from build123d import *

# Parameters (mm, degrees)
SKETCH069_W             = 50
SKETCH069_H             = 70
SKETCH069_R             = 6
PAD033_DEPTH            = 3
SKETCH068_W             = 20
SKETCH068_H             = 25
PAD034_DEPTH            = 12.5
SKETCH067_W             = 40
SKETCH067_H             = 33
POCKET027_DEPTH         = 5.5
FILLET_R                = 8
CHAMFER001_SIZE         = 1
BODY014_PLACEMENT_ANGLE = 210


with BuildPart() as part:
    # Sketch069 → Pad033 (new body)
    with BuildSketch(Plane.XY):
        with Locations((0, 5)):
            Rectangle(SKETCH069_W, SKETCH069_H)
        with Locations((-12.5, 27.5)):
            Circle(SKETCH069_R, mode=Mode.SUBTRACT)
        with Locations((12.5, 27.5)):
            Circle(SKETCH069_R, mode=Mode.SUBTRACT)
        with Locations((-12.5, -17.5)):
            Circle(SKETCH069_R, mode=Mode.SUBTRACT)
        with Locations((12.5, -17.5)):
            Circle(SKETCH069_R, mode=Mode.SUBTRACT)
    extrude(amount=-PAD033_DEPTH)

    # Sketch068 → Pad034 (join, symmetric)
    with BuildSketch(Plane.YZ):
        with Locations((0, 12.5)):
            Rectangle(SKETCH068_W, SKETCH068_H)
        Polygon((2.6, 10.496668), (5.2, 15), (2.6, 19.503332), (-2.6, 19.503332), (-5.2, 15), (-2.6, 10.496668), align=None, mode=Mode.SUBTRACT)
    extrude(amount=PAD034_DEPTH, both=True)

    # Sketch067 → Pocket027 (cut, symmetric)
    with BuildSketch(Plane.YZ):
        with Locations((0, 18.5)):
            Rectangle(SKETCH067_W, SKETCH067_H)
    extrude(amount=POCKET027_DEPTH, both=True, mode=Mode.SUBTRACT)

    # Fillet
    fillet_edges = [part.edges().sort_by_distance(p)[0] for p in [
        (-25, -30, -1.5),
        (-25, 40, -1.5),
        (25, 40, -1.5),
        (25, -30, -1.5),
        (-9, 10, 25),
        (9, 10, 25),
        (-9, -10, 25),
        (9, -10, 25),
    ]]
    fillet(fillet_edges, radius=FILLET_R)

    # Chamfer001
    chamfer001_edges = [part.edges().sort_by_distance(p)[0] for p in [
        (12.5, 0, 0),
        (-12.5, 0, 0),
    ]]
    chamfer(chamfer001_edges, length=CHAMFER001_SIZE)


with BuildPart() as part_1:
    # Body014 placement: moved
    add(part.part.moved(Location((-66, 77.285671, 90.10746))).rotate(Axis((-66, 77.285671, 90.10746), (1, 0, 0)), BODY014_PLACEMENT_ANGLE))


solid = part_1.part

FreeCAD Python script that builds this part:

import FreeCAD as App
import Part
import Sketcher

V = App.Vector
Q = App.Units.Quantity


def edges_at(feature, points):
    """Names of the edges that pass closest to the given points."""
    edges = feature.Shape.Edges
    near = lambda p: min(range(len(edges)), key=lambda i: edges[i].distToShape(Part.Vertex(*p))[0])
    return sorted({f"Edge{near(p) + 1}" for p in points})


def add_polygon(sketch, points):
    """Adds a closed chain of lines whose ends are joined by coincident constraints."""
    first, n = sketch.GeometryCount, len(points)
    for a, b in zip(points, points[1:] + points[:1]):
        sketch.addGeometry(Part.LineSegment(App.Vector(*a, 0), App.Vector(*b, 0)), False)
    for i in range(n):
        sketch.addConstraint(Sketcher.Constraint("Coincident", first + i, 2, first + (i + 1) % n, 1))

doc = App.newDocument("Part")
body = doc.addObject("PartDesign::Body", "Body")

sketch1 = body.newObject("Sketcher::SketchObject", "Sketch")
sketch1.AttachmentSupport = (doc.getObject("XY_Plane"), [""])
sketch1.MapMode = "FlatFace"
add_polygon(sketch1, [(-25, 40), (-25, -30), (25, -30), (25, 40)])
sketch1.addGeometry(Part.Circle(V(-12, -18, 0), V(0, 0, 1), 6), False)
sketch1.addGeometry(Part.Circle(V(12, -18, 0), V(0, 0, 1), 6), False)
sketch1.addGeometry(Part.Circle(V(-12, 28, 0), V(0, 0, 1), 6), False)
sketch1.addGeometry(Part.Circle(V(12, 28, 0), V(0, 0, 1), 6), False)
sketch1.addConstraint([
    Sketcher.Constraint("Vertical", 0),
    Sketcher.Constraint("Horizontal", 1),
    Sketcher.Constraint("Vertical", 2),
    Sketcher.Constraint("Horizontal", 3),
    Sketcher.Constraint("Equal", 4, 5),
    Sketcher.Constraint("Equal", 5, 6),
    Sketcher.Constraint("Equal", 6, 7),
    Sketcher.Constraint("Symmetric", 4, 3, 5, 3, -2),
    Sketcher.Constraint("Symmetric", 6, 3, 7, 3, -2),
    Sketcher.Constraint("Vertical", 4, 3, 6, 3),
    Sketcher.Constraint("Diameter", 4, 12.0),
    Sketcher.Constraint("DistanceX", 1, 1, 1, 2, 50.0),
    Sketcher.Constraint("DistanceY", 0, 2, 0, 1, 70.0),
    Sketcher.Constraint("DistanceX", 0, 2, -1, 1, 25.0),
    Sketcher.Constraint("DistanceY", 0, 2, -1, 1, 30.0),
    Sketcher.Constraint("DistanceX", 4, 3, 5, 3, 25.0),
    Sketcher.Constraint("DistanceY", 4, 3, 6, 3, 45.0),
    Sketcher.Constraint("DistanceY", 4, 3, -1, 1, 17.5),
])
pad1 = body.newObject("PartDesign::Pad", "Pad")
pad1.Profile = sketch1
pad1.Length = 3
pad1.Reversed = True

sketch2 = body.newObject("Sketcher::SketchObject", "Sketch001")
sketch2.AttachmentSupport = (doc.getObject("YZ_Plane"), [""])
sketch2.MapMode = "FlatFace"
add_polygon(sketch2, [(-10, 25), (-10, 0), (10, 0), (10, 25)])
add_polygon(sketch2, [(5, 15), (3, 10), (-3, 10), (-5, 15), (-3, 20), (3, 20)])
sketch2.addConstraint([
    Sketcher.Constraint("Vertical", 0),
    Sketcher.Constraint("Horizontal", 1),
    Sketcher.Constraint("Vertical", 2),
    Sketcher.Constraint("Horizontal", 3),
    Sketcher.Constraint("Horizontal", 5),
    Sketcher.Constraint("Horizontal", 8),
    Sketcher.Constraint("Symmetric", 0, 2, 1, 2, -1, 1),
    Sketcher.Constraint("Symmetric", 6, 2, 9, 2, -2),
    Sketcher.Constraint("Parallel", 4, 7),
    Sketcher.Constraint("Parallel", 6, 9),
    Sketcher.Constraint("Vertical", 5, 2, 7, 2),
    Sketcher.Constraint("Vertical", 4, 2, 8, 2),
    Sketcher.Constraint("DistanceX", 1, 1, 1, 2, 20.0),
    Sketcher.Constraint("DistanceY", 0, 2, 0, 1, 25.0),
    Sketcher.Constraint("Angle", 4, Q("-120.000001 deg")),
    Sketcher.Constraint("DistanceX", 5, 2, 5, 1, 5.2),
    Sketcher.Constraint("DistanceY", -1, 1, 6, 2, 15.0),
    Sketcher.Constraint("Distance", 4, 5.2),
])
pad2 = body.newObject("PartDesign::Pad", "Pad001")
pad2.Profile = sketch2
pad2.Length = 25
pad2.Midplane = True

sketch3 = body.newObject("Sketcher::SketchObject", "Sketch002")
sketch3.AttachmentSupport = (doc.getObject("YZ_Plane"), [""])
sketch3.MapMode = "FlatFace"
add_polygon(sketch3, [(-20, 35), (-20, 2), (20, 2), (20, 35)])
sketch3.addConstraint([
    Sketcher.Constraint("Vertical", 0),
    Sketcher.Constraint("Horizontal", 1),
    Sketcher.Constraint("Vertical", 2),
    Sketcher.Constraint("Horizontal", 3),
    Sketcher.Constraint("DistanceX", 1, 1, 1, 2, 40.0),
    Sketcher.Constraint("DistanceY", 0, 2, 0, 1, 33.0),
    Sketcher.Constraint("DistanceX", 0, 2, -1, 1, 20.0),
    Sketcher.Constraint("DistanceY", -1, 1, 0, 2, 2.0),
])
pocket1 = body.newObject("PartDesign::Pocket", "Pocket")
pocket1.Profile = sketch3
pocket1.Length = 11
pocket1.Midplane = True
doc.recompute()

fillet = body.newObject("PartDesign::Fillet", "Fillet")
fillet.Base = (pocket1, edges_at(pocket1, [
    (-25, -30, -1.5),
    (-25, 40, -1.5),
    (25, 40, -1.5),
    (25, -30, -1.5),
    (-9, 10, 25),
    (9, 10, 25),
    (-9, -10, 25),
    (9, -10, 25),
]))
fillet.Radius = 8
doc.recompute()

chamfer = body.newObject("PartDesign::Chamfer", "Chamfer")
chamfer.Base = (fillet, edges_at(fillet, [(12.5, 0, 0), (-12.5, 0, 0)]))
chamfer.Size = 1
body2 = doc.addObject("PartDesign::Body", "Body001")
doc.recompute()

body.Placement = App.Placement(V(-66, 77.285671, 90.10746), App.Rotation(V(1, 0, 0), 210))
boolean = body2.newObject("PartDesign::Boolean", "Boolean")
boolean.Type = "Fuse"
boolean.addObjects([body])

doc.recompute()
